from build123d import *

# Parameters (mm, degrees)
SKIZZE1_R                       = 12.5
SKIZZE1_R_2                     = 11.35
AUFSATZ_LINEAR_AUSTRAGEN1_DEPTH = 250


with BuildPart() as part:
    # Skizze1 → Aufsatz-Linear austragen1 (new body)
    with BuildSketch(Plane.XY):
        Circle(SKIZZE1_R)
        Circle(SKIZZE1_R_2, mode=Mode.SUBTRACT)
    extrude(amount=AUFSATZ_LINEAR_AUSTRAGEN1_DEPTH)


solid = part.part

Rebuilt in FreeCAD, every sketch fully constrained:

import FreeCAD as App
import Part
import Sketcher

doc = App.newDocument("Part")
body = doc.addObject("PartDesign::Body", "Body")

# Sketch on XY plane
sketch1 = body.newObject("Sketcher::SketchObject", "Sketch")
sketch1.AttachmentSupport = (doc.getObject("XY_Plane"), [""])
sketch1.MapMode = "FlatFace"
sketch1.addGeometry([
    Part.Circle(App.Vector(0, 0, 0), App.Vector(0, 0, 1), 12.5),
    Part.Circle(App.Vector(0, 0, 0), App.Vector(0, 0, 1), 11.35),
], False)
sketch1.addConstraint([
    Sketcher.Constraint("Coincident", 0, 3, -1, 1),
    Sketcher.Constraint("Coincident", 1, 3, -1, 1),
    Sketcher.Constraint("Diameter", 0, 25.0),
    Sketcher.Constraint("Diameter", 1, 22.7),
])
pad1 = body.newObject("PartDesign::Pad", "Pad")
pad1.Profile = sketch1
pad1.Length = 250

doc.recompute()
